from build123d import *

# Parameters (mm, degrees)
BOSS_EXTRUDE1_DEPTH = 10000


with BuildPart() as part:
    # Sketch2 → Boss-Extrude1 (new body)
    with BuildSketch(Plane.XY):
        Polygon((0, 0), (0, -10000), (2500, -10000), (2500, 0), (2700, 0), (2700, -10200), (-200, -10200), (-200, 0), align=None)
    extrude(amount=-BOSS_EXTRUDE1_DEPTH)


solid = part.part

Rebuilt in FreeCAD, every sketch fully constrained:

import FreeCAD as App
import Part
import Sketcher
from FreeCAD import Vector


def add_polygon(sketch, points):
    """Adds a closed chain of lines whose ends are joined by coincident constraints."""
    first, n = sketch.GeometryCount, len(points)
    for a, b in zip(points, points[1:] + points[:1]):
        sketch.addGeometry(Part.LineSegment(App.Vector(*a, 0), App.Vector(*b, 0)), False)
    for i in range(n):
        sketch.addConstraint(Sketcher.Constraint("Coincident", first + i, 2, first + (i + 1) % n, 1))

doc = App.newDocument("Part")
params = doc.addObject("Spreadsheet::Sheet", "Params")
for row, (alias, value) in enumerate([
    ("sketch1_width", "200 mm"),
    ("sketch1_width2", "2900 mm"),
    ("sketch1_height", "10000 mm"),
    ("sketch1_height2", "10200 mm"),
    ("pad1_length", "10000 mm"),
], start=1):
    params.set(f"A{row}", alias)
    params.set(f"B{row}", "=" + value)
    params.setAlias(f"B{row}", alias)

body = doc.addObject("PartDesign::Body", "Body")

# Sketch on XY plane
sketch1 = body.newObject("Sketcher::SketchObject", "Sketch")
sketch1.AttachmentSupport = (doc.getObject("XY_Plane"), [""])
sketch1.MapMode = "FlatFace"
add_polygon(sketch1, [(0, -10000), (0, 0), (-200, 0), (-200, -10200), (2700, -10200), (2700, 0), (2500, 0), (2500, -10000)])  # lines 0-7
sketch1.addConstraint(Sketcher.Constraint("Vertical", 0))
sketch1.addConstraint(Sketcher.Constraint("Horizontal", 1))
sketch1.addConstraint(Sketcher.Constraint("Vertical", 2))
sketch1.addConstraint(Sketcher.Constraint("Horizontal", 3))
sketch1.addConstraint(Sketcher.Constraint("Vertical", 4))
sketch1.addConstraint(Sketcher.Constraint("Horizontal", 5))
sketch1.addConstraint(Sketcher.Constraint("Vertical", 6))
sketch1.addConstraint(Sketcher.Constraint("Horizontal", 7))
sketch1.addConstraint(Sketcher.Constraint("Coincident", 0, 2, -1, 1))
sketch1.addConstraint(Sketcher.Constraint("PointOnObject", 4, 2, -1))
sketch1.addConstraint(Sketcher.Constraint("Equal", 1, 5))
sketch1.addConstraint(Sketcher.Constraint("DistanceX", 1, 2, 1, 1, 200.0))
sketch1.addConstraint(Sketcher.Constraint("DistanceX", 3, 1, 3, 2, 2900.0))
sketch1.addConstraint(Sketcher.Constraint("DistanceY", 0, 1, 0, 2, 10000.0))
sketch1.addConstraint(Sketcher.Constraint("DistanceY", 2, 2, 2, 1, 10200.0))
sketch1.setExpression("Constraints[19]", "Params.sketch1_width")
sketch1.setExpression("Constraints[20]", "Params.sketch1_width2")
sketch1.setExpression("Constraints[21]", "Params.sketch1_height")
sketch1.setExpression("Constraints[22]", "Params.sketch1_height2")
pad1 = body.newObject("PartDesign::Pad", "Pad")
pad1.Profile = sketch1
pad1.setExpression("Length", "Params.pad1_length")
pad1.Reversed = True

doc.recompute()
